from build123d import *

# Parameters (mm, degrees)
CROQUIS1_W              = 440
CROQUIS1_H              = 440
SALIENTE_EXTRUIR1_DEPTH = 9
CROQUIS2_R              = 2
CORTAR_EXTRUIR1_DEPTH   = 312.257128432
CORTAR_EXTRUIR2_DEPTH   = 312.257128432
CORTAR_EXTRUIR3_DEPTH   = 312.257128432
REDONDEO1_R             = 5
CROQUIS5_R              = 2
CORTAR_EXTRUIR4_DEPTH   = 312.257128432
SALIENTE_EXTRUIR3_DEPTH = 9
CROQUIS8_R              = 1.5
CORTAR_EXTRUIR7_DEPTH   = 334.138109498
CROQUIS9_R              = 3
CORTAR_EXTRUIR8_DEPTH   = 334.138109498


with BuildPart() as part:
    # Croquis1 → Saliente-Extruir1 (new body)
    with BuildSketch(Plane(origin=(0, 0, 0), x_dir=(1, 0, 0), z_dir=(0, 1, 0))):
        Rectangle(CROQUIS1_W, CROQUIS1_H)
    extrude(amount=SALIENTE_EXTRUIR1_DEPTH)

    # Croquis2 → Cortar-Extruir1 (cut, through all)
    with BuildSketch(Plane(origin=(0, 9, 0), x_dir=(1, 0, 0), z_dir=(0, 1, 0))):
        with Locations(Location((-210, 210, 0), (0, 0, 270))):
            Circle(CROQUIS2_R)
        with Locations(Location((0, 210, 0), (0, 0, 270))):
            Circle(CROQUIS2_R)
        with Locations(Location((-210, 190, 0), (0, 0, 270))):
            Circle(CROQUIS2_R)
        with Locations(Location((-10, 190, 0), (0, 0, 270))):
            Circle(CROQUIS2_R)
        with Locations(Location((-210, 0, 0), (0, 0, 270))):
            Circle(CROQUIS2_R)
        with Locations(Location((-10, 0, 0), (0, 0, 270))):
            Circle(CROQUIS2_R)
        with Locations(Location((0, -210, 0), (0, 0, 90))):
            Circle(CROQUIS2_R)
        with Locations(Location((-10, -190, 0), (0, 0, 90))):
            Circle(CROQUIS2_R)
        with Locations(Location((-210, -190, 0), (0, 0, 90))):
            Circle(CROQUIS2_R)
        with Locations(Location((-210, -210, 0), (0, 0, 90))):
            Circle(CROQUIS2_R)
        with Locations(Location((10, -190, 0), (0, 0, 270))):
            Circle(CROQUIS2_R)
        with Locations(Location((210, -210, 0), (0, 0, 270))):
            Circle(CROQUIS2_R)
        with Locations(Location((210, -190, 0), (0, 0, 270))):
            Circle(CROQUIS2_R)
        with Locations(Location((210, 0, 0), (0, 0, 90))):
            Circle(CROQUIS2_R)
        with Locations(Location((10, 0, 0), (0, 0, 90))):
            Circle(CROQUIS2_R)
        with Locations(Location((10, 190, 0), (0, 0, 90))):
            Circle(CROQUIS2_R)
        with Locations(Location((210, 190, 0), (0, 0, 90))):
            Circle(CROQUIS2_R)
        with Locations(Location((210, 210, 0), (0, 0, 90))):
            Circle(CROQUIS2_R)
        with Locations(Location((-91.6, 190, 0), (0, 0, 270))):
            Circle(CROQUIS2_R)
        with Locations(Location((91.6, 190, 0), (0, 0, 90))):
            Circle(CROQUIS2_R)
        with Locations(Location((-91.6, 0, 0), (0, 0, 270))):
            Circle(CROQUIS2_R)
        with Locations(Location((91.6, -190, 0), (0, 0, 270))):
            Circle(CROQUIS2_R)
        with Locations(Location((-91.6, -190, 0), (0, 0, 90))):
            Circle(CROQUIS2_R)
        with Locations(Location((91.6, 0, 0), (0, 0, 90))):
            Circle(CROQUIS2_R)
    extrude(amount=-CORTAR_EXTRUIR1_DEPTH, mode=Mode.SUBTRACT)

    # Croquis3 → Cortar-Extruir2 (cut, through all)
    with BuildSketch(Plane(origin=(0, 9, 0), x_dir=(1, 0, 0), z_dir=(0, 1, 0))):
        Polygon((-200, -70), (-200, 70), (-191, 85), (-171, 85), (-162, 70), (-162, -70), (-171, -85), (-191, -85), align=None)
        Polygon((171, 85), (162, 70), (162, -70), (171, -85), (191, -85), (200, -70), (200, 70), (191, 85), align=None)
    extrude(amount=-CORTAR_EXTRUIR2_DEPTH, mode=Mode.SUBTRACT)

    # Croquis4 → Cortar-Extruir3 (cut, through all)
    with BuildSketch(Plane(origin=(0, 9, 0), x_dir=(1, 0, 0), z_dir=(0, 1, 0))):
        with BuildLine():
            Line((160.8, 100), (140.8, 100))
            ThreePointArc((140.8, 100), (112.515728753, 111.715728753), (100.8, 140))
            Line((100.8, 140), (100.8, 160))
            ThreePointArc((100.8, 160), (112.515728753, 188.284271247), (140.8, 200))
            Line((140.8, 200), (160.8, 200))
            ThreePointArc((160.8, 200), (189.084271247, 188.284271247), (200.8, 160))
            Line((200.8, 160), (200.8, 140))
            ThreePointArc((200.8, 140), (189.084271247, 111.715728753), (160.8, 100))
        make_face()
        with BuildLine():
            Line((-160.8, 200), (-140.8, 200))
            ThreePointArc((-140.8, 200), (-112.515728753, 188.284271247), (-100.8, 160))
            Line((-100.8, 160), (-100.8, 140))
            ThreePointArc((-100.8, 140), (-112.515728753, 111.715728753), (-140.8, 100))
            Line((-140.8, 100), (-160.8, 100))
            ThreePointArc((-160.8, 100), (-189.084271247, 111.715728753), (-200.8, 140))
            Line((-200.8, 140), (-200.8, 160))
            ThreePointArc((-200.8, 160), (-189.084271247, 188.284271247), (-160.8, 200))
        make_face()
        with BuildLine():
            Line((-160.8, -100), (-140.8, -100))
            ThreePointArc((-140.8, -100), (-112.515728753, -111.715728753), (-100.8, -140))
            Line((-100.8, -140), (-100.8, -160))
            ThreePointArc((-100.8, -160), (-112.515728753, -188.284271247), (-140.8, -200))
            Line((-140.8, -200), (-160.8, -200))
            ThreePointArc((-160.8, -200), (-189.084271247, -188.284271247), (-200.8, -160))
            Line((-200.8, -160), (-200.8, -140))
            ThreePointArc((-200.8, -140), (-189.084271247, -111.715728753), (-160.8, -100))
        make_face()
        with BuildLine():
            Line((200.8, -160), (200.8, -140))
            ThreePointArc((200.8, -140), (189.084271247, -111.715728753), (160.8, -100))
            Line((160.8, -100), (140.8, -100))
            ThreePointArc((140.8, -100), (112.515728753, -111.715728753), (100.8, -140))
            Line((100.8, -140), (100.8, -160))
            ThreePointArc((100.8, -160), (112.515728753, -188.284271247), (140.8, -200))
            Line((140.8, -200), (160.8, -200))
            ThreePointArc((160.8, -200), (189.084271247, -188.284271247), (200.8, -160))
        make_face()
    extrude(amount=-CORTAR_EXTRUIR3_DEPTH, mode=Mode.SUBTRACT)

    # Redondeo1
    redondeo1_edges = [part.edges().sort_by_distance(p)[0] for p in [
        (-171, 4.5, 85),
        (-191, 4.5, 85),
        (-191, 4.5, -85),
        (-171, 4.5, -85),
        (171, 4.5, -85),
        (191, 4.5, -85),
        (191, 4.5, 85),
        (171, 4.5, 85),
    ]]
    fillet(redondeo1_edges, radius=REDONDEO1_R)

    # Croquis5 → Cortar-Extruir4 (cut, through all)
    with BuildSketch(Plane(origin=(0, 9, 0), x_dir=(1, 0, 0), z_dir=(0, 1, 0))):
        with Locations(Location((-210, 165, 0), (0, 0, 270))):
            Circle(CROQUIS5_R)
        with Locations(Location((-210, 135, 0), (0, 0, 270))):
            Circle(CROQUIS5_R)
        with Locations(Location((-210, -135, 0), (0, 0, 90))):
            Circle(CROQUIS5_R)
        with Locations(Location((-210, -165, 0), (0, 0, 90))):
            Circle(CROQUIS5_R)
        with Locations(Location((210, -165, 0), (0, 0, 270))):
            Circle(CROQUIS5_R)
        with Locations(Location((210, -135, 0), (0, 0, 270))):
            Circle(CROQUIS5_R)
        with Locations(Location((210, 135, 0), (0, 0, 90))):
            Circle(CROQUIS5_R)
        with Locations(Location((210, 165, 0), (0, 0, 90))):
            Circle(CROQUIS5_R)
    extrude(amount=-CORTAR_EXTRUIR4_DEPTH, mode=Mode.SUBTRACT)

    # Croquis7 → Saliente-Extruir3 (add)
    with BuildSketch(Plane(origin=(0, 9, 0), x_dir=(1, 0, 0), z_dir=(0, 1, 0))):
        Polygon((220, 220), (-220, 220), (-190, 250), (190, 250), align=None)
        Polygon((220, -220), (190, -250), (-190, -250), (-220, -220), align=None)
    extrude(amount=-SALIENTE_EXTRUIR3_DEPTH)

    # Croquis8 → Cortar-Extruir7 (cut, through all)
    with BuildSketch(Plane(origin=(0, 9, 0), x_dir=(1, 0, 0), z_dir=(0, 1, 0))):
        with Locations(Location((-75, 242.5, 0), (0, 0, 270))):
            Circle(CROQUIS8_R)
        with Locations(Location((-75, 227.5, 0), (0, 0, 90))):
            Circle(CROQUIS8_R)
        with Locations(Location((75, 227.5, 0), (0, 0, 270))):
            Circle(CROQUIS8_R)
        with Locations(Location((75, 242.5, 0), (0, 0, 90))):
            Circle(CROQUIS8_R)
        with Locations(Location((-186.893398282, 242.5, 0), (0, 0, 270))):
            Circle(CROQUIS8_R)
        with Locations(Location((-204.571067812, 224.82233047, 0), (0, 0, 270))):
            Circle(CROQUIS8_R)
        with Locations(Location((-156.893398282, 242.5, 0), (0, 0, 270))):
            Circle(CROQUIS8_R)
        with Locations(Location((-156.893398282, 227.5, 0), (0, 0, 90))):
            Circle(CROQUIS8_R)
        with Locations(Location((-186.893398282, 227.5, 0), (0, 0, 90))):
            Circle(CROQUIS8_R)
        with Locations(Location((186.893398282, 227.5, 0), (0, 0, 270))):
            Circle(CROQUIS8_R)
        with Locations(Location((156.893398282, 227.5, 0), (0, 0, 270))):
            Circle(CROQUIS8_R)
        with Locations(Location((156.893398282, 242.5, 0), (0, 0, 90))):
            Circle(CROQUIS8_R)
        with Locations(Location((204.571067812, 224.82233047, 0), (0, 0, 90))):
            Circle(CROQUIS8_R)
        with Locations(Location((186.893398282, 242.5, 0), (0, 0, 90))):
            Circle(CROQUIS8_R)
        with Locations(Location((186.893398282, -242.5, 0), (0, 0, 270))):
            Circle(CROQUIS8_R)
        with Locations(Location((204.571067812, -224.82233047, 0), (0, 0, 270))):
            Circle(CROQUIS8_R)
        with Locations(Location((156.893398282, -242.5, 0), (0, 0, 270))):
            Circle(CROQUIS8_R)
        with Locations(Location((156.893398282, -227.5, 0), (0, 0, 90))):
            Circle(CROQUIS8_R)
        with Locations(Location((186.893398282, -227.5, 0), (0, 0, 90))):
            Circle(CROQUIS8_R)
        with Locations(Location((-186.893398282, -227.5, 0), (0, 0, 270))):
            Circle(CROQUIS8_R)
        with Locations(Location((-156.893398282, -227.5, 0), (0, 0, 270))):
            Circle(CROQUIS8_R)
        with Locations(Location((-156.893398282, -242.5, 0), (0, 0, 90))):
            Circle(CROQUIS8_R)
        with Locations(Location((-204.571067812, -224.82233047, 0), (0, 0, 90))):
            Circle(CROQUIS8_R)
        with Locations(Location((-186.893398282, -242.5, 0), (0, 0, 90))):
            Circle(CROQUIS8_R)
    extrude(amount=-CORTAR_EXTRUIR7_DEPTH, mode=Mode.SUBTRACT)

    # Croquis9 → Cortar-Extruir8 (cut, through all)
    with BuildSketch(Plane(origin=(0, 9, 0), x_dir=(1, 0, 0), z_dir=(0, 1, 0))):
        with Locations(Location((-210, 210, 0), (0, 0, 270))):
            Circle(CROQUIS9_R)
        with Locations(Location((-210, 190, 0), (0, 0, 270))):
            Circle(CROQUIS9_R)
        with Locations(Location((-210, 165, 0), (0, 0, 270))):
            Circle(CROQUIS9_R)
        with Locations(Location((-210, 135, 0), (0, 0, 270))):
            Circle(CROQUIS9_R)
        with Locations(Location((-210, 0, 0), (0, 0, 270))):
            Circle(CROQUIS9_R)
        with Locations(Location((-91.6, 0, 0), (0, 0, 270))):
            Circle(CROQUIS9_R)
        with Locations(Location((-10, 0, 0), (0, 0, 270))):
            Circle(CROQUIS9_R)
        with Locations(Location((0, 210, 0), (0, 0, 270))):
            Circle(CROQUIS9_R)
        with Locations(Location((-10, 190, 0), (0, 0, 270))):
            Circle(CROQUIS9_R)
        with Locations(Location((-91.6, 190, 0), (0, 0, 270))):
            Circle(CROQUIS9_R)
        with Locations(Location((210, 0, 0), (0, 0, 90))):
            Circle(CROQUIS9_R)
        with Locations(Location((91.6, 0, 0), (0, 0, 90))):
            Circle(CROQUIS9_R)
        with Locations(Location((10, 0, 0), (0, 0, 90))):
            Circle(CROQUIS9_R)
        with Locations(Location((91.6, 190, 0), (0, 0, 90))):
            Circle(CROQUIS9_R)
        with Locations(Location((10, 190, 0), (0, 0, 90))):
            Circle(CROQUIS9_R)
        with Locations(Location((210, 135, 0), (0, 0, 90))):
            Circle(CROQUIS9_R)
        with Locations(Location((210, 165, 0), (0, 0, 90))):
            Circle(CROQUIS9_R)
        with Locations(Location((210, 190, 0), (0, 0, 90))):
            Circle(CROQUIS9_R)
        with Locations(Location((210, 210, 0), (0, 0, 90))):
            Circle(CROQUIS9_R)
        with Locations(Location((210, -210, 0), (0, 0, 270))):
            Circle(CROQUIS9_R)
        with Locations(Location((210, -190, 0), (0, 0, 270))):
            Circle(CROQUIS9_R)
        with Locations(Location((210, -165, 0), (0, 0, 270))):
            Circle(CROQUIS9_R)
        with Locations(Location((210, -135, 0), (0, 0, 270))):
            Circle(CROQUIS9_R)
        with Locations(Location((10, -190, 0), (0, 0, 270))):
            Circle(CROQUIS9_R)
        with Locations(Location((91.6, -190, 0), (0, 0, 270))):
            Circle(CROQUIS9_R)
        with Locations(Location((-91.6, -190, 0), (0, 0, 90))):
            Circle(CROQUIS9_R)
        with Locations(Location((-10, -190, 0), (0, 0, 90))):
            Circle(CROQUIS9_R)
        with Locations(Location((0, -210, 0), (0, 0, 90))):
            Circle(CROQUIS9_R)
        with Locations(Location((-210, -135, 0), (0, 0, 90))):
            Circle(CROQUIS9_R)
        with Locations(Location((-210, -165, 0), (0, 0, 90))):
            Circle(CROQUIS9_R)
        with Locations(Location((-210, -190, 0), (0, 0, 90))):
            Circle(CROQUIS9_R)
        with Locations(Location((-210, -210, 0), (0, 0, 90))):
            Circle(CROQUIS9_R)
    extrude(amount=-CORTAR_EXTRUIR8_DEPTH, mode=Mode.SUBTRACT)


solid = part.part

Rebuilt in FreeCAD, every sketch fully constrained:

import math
import FreeCAD as App
import Part
import Sketcher
from FreeCAD import Vector
Q = App.Units.Quantity


def edges_at(feature, points):
    """Names of the edges that pass closest to the given points."""
    edges = feature.Shape.Edges
    near = lambda p: min(range(len(edges)), key=lambda i: edges[i].distToShape(Part.Vertex(*p))[0])
    return sorted({f"Edge{near(p) + 1}" for p in points})


def add_polygon(sketch, points):
    """Adds a closed chain of lines whose ends are joined by coincident constraints."""
    first, n = sketch.GeometryCount, len(points)
    for a, b in zip(points, points[1:] + points[:1]):
        sketch.addGeometry(Part.LineSegment(App.Vector(*a, 0), App.Vector(*b, 0)), False)
    for i in range(n):
        sketch.addConstraint(Sketcher.Constraint("Coincident", first + i, 2, first + (i + 1) % n, 1))

doc = App.newDocument("Part")
body = doc.addObject("PartDesign::Body", "Body")

sketch1 = body.newObject("Sketcher::SketchObject", "Sketch")
sketch1.AttachmentSupport = (doc.getObject("XZ_Plane"), [""])
sketch1.MapMode = "FlatFace"
add_polygon(sketch1, [(-220, -220), (-220, 220), (220, 220), (220, -220)])
sketch1.addConstraint(Sketcher.Constraint("Vertical", 0))
sketch1.addConstraint(Sketcher.Constraint("Horizontal", 1))
sketch1.addConstraint(Sketcher.Constraint("Vertical", 2))
sketch1.addConstraint(Sketcher.Constraint("Horizontal", 3))
sketch1.addConstraint(Sketcher.Constraint("Symmetric", 0, 2, 2, 2, -1, 1))
sketch1.addConstraint(Sketcher.Constraint("Equal", 3, 0))
sketch1.addConstraint(Sketcher.Constraint("DistanceX", 1, 1, 1, 2, Q("440 mm")))
pad1 = body.newObject("PartDesign::Pad", "Pad")
pad1.Profile = sketch1
pad1.Length = 9
pad1.Reversed = True

sketch2 = body.newObject("Sketcher::SketchObject", "Sketch001")
sketch2.AttachmentSupport = (doc.getObject("XZ_Plane"), [""])
sketch2.MapMode = "FlatFace"
sketch2.AttachmentOffset = App.Placement(Vector(0, 0, -9), App.Rotation())
sketch2.addGeometry(Part.Circle(Vector(-210, -210, 0), Vector(0, 0, 1), 2), False)
sketch2.addGeometry(Part.Circle(Vector(0, -210, 0), Vector(0, 0, 1), 2), False)
sketch2.addGeometry(Part.Circle(Vector(-210, -190, 0), Vector(0, 0, 1), 2), False)
sketch2.addGeometry(Part.Circle(Vector(-10, -190, 0), Vector(0, 0, 1), 2), False)
sketch2.addGeometry(Part.Circle(Vector(-210, 0, 0), Vector(0, 0, 1), 2), False)
sketch2.addGeometry(Part.Circle(Vector(-10, 0, 0), Vector(0, 0, 1), 2), False)
sketch2.addGeometry(Part.Circle(Vector(0, 210, 0), Vector(0, 0, 1), 2), False)
sketch2.addGeometry(Part.Circle(Vector(-10, 190, 0), Vector(0, 0, 1), 2), False)
sketch2.addGeometry(Part.Circle(Vector(-210, 190, 0), Vector(0, 0, 1), 2), False)
sketch2.addGeometry(Part.Circle(Vector(-210, 210, 0), Vector(0, 0, 1), 2), False)
sketch2.addGeometry(Part.Circle(Vector(10, 190, 0), Vector(0, 0, 1), 2), False)
sketch2.addGeometry(Part.Circle(Vector(210, 210, 0), Vector(0, 0, 1), 2), False)
sketch2.addGeometry(Part.Circle(Vector(210, 190, 0), Vector(0, 0, 1), 2), False)
sketch2.addGeometry(Part.Circle(Vector(210, 0, 0), Vector(0, 0, 1), 2), False)
sketch2.addGeometry(Part.Circle(Vector(10, 0, 0), Vector(0, 0, 1), 2), False)
sketch2.addGeometry(Part.Circle(Vector(10, -190, 0), Vector(0, 0, 1), 2), False)
sketch2.addGeometry(Part.Circle(Vector(210, -190, 0), Vector(0, 0, 1), 2), False)
sketch2.addGeometry(Part.Circle(Vector(210, -210, 0), Vector(0, 0, 1), 2), False)
sketch2.addGeometry(Part.Circle(Vector(-91.6, -190, 0), Vector(0, 0, 1), 2), False)
sketch2.addGeometry(Part.Circle(Vector(91.6, -190, 0), Vector(0, 0, 1), 2), False)
sketch2.addGeometry(Part.Circle(Vector(-91.6, 0, 0), Vector(0, 0, 1), 2), False)
sketch2.addGeometry(Part.Circle(Vector(91.6, 190, 0), Vector(0, 0, 1), 2), False)
sketch2.addGeometry(Part.Circle(Vector(-91.6, 190, 0), Vector(0, 0, 1), 2), False)
sketch2.addGeometry(Part.Circle(Vector(91.6, 0, 0), Vector(0, 0, 1), 2), False)
sketch2.addConstraint(Sketcher.Constraint("Equal", 0, 1))
sketch2.addConstraint(Sketcher.Constraint("Equal", 1, 2))
sketch2.addConstraint(Sketcher.Constraint("Equal", 2, 3))
sketch2.addConstraint(Sketcher.Constraint("Equal", 3, 4))
sketch2.addConstraint(Sketcher.Constraint("Equal", 4, 5))
sketch2.addConstraint(Sketcher.Constraint("Equal", 5, 6))
sketch2.addConstraint(Sketcher.Constraint("Equal", 6, 7))
sketch2.addConstraint(Sketcher.Constraint("Equal", 7, 8))
sketch2.addConstraint(Sketcher.Constraint("Equal", 8, 9))
sketch2.addConstraint(Sketcher.Constraint("Equal", 9, 10))
sketch2.addConstraint(Sketcher.Constraint("Equal", 10, 11))
sketch2.addConstraint(Sketcher.Constraint("Equal", 11, 12))
sketch2.addConstraint(Sketcher.Constraint("Equal", 12, 13))
sketch2.addConstraint(Sketcher.Constraint("Equal", 13, 14))
sketch2.addConstraint(Sketcher.Constraint("Equal", 14, 15))
sketch2.addConstraint(Sketcher.Constraint("Equal", 15, 16))
sketch2.addConstraint(Sketcher.Constraint("Equal", 16, 17))
sketch2.addConstraint(Sketcher.Constraint("Equal", 17, 18))
sketch2.addConstraint(Sketcher.Constraint("Equal", 18, 19))
sketch2.addConstraint(Sketcher.Constraint("Equal", 19, 20))
sketch2.addConstraint(Sketcher.Constraint("Equal", 20, 21))
sketch2.addConstraint(Sketcher.Constraint("Equal", 21, 22))
sketch2.addConstraint(Sketcher.Constraint("Equal", 22, 23))
sketch2.addConstraint(Sketcher.Constraint("Symmetric", 1, 3, 6, 3, -1, 1))
sketch2.addConstraint(Sketcher.Constraint("Symmetric", 3, 3, 10, 3, -1, 1))
sketch2.addConstraint(Sketcher.Constraint("Symmetric", 0, 3, 11, 3, -1, 1))
sketch2.addConstraint(Sketcher.Constraint("Symmetric", 2, 3, 12, 3, -1, 1))
sketch2.addConstraint(Sketcher.Constraint("Symmetric", 4, 3, 13, 3, -1, 1))
sketch2.addConstraint(Sketcher.Constraint("Symmetric", 5, 3, 14, 3, -1, 1))
sketch2.addConstraint(Sketcher.Constraint("Symmetric", 7, 3, 15, 3, -1, 1))
sketch2.addConstraint(Sketcher.Constraint("Symmetric", 8, 3, 16, 3, -1, 1))
sketch2.addConstraint(Sketcher.Constraint("Symmetric", 9, 3, 17, 3, -1, 1))
sketch2.addConstraint(Sketcher.Constraint("Symmetric", 18, 3, 21, 3, -1, 1))
sketch2.addConstraint(Sketcher.Constraint("Symmetric", 19, 3, 22, 3, -1, 1))
sketch2.addConstraint(Sketcher.Constraint("Symmetric", 20, 3, 23, 3, -1, 1))
sketch2.addConstraint(Sketcher.Constraint("Symmetric", 7, 3, 10, 3, -2))
sketch2.addConstraint(Sketcher.Constraint("Symmetric", 9, 3, 11, 3, -2))
sketch2.addConstraint(Sketcher.Constraint("Symmetric", 8, 3, 12, 3, -2))
sketch2.addConstraint(Sketcher.Constraint("Symmetric", 18, 3, 19, 3, -2))
sketch2.addConstraint(Sketcher.Constraint("PointOnObject", 1, 3, -2))
sketch2.addConstraint(Sketcher.Constraint("PointOnObject", 4, 3, -1))
sketch2.addConstraint(Sketcher.Constraint("PointOnObject", 5, 3, -1))
sketch2.addConstraint(Sketcher.Constraint("PointOnObject", 20, 3, -1))
sketch2.addConstraint(Sketcher.Constraint("Horizontal", 0, 3, 1, 3))
sketch2.addConstraint(Sketcher.Constraint("Horizontal", 2, 3, 3, 3))
sketch2.addConstraint(Sketcher.Constraint("Horizontal", 16, 3, 18, 3))
sketch2.addConstraint(Sketcher.Constraint("Vertical", 0, 3, 2, 3))
sketch2.addConstraint(Sketcher.Constraint("Vertical", 2, 3, 4, 3))
sketch2.addConstraint(Sketcher.Constraint("Vertical", 3, 3, 5, 3))
sketch2.addConstraint(Sketcher.Constraint("Vertical", 18, 3, 20, 3))
sketch2.addConstraint(Sketcher.Constraint("Diameter", 0, Q("4 mm")))
sketch2.addConstraint(Sketcher.Constraint("DistanceX", 0, 3, -1, 1, Q("210 mm")))
sketch2.addConstraint(Sketcher.Constraint("DistanceY", 0, 3, -1, 1, Q("210 mm")))
sketch2.addConstraint(Sketcher.Constraint("DistanceY", 2, 3, -1, 1, Q("190 mm")))
sketch2.addConstraint(Sketcher.Constraint("DistanceX", 3, 3, -1, 1, Q("10 mm")))
sketch2.addConstraint(Sketcher.Constraint("DistanceX", 18, 3, -1, 1, Q("91.6 mm")))
pocket1 = body.newObject("PartDesign::Pocket", "Pocket")
pocket1.Profile = sketch2
pocket1.Type = "ThroughAll"
pocket1.Reversed = True

sketch3 = body.newObject("Sketcher::SketchObject", "Sketch002")
sketch3.AttachmentSupport = (doc.getObject("XZ_Plane"), [""])
sketch3.MapMode = "FlatFace"
sketch3.AttachmentOffset = App.Placement(Vector(0, 0, -9), App.Rotation())
add_polygon(sketch3, [(-200, -70), (-200, 70), (-191, 85), (-171, 85), (-162, 70), (-162, -70), (-171, -85), (-191, -85)])
add_polygon(sketch3, [(171, -85), (162, -70), (162, 70), (171, 85), (191, 85), (200, 70), (200, -70), (191, -85)])
sketch3.addConstraint(Sketcher.Constraint("Vertical", 0))
sketch3.addConstraint(Sketcher.Constraint("Horizontal", 2))
sketch3.addConstraint(Sketcher.Constraint("Vertical", 4))
sketch3.addConstraint(Sketcher.Constraint("Horizontal", 6))
sketch3.addConstraint(Sketcher.Constraint("Vertical", 9))
sketch3.addConstraint(Sketcher.Constraint("Horizontal", 11))
sketch3.addConstraint(Sketcher.Constraint("Vertical", 13))
sketch3.addConstraint(Sketcher.Constraint("Horizontal", 15))
sketch3.addConstraint(Sketcher.Constraint("Symmetric", 3, 2, 8, 2, -1, 1))
sketch3.addConstraint(Sketcher.Constraint("Symmetric", 5, 2, 10, 2, -1, 1))
sketch3.addConstraint(Sketcher.Constraint("Symmetric", 7, 2, 12, 2, -1, 1))
sketch3.addConstraint(Sketcher.Constraint("Symmetric", 1, 2, 14, 2, -1, 1))
sketch3.addConstraint(Sketcher.Constraint("Symmetric", 2, 2, 10, 2, -2))
sketch3.addConstraint(Sketcher.Constraint("Parallel", 1, 5))
sketch3.addConstraint(Sketcher.Constraint("Parallel", 3, 7))
sketch3.addConstraint(Sketcher.Constraint("Parallel", 7, 8))
sketch3.addConstraint(Sketcher.Constraint("Parallel", 5, 10))
sketch3.addConstraint(Sketcher.Constraint("Parallel", 8, 12))
sketch3.addConstraint(Sketcher.Constraint("Parallel", 10, 14))
sketch3.addConstraint(Sketcher.Constraint("Horizontal", 0, 2, 3, 2))
sketch3.addConstraint(Sketcher.Constraint("Horizontal", 4, 2, 7, 2))
sketch3.addConstraint(Sketcher.Constraint("Horizontal", 7, 2, 8, 2))
sketch3.addConstraint(Sketcher.Constraint("DistanceX", 2, 1, 2, 2, Q("20 mm")))
sketch3.addConstraint(Sketcher.Constraint("DistanceY", 0, 1, 0, 2, Q("140 mm")))
sketch3.addConstraint(Sketcher.Constraint("DistanceX", 0, 2, -1, 1, Q("200 mm")))
sketch3.addConstraint(Sketcher.Constraint("DistanceX", 1, 2, -1, 1, Q("191 mm")))
sketch3.addConstraint(Sketcher.Constraint("DistanceY", -1, 1, 1, 2, Q("85 mm")))
pocket2 = body.newObject("PartDesign::Pocket", "Pocket001")
pocket2.Profile = sketch3
pocket2.Type = "ThroughAll"
pocket2.Reversed = True

sketch4 = body.newObject("Sketcher::SketchObject", "Sketch003")
sketch4.AttachmentSupport = (doc.getObject("XZ_Plane"), [""])
sketch4.MapMode = "FlatFace"
sketch4.AttachmentOffset = App.Placement(Vector(0, 0, -9), App.Rotation())
sketch4.addGeometry(Part.LineSegment(Vector(141, -100, 0), Vector(161, -100, 0)), False)
sketch4.addGeometry(Part.ArcOfCircle(Part.Circle(Vector(161, -140, 0), Vector(0, 0, 1), 40), math.radians(0), math.radians(90)), False)
sketch4.addGeometry(Part.LineSegment(Vector(201, -140, 0), Vector(201, -160, 0)), False)
sketch4.addGeometry(Part.ArcOfCircle(Part.Circle(Vector(161, -160, 0), Vector(0, 0, 1), 40), math.radians(-90), math.radians(0)), False)
sketch4.addGeometry(Part.LineSegment(Vector(161, -200, 0), Vector(141, -200, 0)), False)
sketch4.addGeometry(Part.ArcOfCircle(Part.Circle(Vector(141, -160, 0), Vector(0, 0, 1), 40), math.radians(-180), math.radians(-90)), False)
sketch4.addGeometry(Part.LineSegment(Vector(101, -160, 0), Vector(101, -140, 0)), False)
sketch4.addGeometry(Part.ArcOfCircle(Part.Circle(Vector(141, -140, 0), Vector(0, 0, 1), 40), math.radians(90), math.radians(180)), False)
sketch4.addGeometry(Part.LineSegment(Vector(-141, -200, 0), Vector(-161, -200, 0)), False)
sketch4.addGeometry(Part.ArcOfCircle(Part.Circle(Vector(-161, -160, 0), Vector(0, 0, 1), 40), math.radians(-180), math.radians(-90)), False)
sketch4.addGeometry(Part.LineSegment(Vector(-201, -160, 0), Vector(-201, -140, 0)), False)
sketch4.addGeometry(Part.ArcOfCircle(Part.Circle(Vector(-161, -140, 0), Vector(0, 0, 1), 40), math.radians(90), math.radians(180)), False)
sketch4.addGeometry(Part.LineSegment(Vector(-161, -100, 0), Vector(-141, -100, 0)), False)
sketch4.addGeometry(Part.ArcOfCircle(Part.Circle(Vector(-141, -140, 0), Vector(0, 0, 1), 40), math.radians(0), math.radians(90)), False)
sketch4.addGeometry(Part.LineSegment(Vector(-101, -140, 0), Vector(-101, -160, 0)), False)
sketch4.addGeometry(Part.ArcOfCircle(Part.Circle(Vector(-141, -160, 0), Vector(0, 0, 1), 40), math.radians(-90), math.radians(0)), False)
sketch4.addGeometry(Part.LineSegment(Vector(-141, 100, 0), Vector(-161, 100, 0)), False)
sketch4.addGeometry(Part.ArcOfCircle(Part.Circle(Vector(-161, 140, 0), Vector(0, 0, 1), 40), math.radians(-180), math.radians(-90)), False)
sketch4.addGeometry(Part.LineSegment(Vector(-201, 140, 0), Vector(-201, 160, 0)), False)
sketch4.addGeometry(Part.ArcOfCircle(Part.Circle(Vector(-161, 160, 0), Vector(0, 0, 1), 40), math.radians(90), math.radians(180)), False)
sketch4.addGeometry(Part.LineSegment(Vector(-161, 200, 0), Vector(-141, 200, 0)), False)
sketch4.addGeometry(Part.ArcOfCircle(Part.Circle(Vector(-141, 160, 0), Vector(0, 0, 1), 40), math.radians(0), math.radians(90)), False)
sketch4.addGeometry(Part.LineSegment(Vector(-101, 160, 0), Vector(-101, 140, 0)), False)
sketch4.addGeometry(Part.ArcOfCircle(Part.Circle(Vector(-141, 140, 0), Vector(0, 0, 1), 40), math.radians(-90), math.radians(0)), False)
sketch4.addGeometry(Part.LineSegment(Vector(201, 160, 0), Vector(201, 140, 0)), False)
sketch4.addGeometry(Part.ArcOfCircle(Part.Circle(Vector(161, 140, 0), Vector(0, 0, 1), 40), math.radians(-90), math.radians(0)), False)
sketch4.addGeometry(Part.LineSegment(Vector(161, 100, 0), Vector(141, 100, 0)), False)
sketch4.addGeometry(Part.ArcOfCircle(Part.Circle(Vector(141, 140, 0), Vector(0, 0, 1), 40), math.radians(-180), math.radians(-90)), False)
sketch4.addGeometry(Part.LineSegment(Vector(101, 140, 0), Vector(101, 160, 0)), False)
sketch4.addGeometry(Part.ArcOfCircle(Part.Circle(Vector(141, 160, 0), Vector(0, 0, 1), 40), math.radians(90), math.radians(180)), False)
sketch4.addGeometry(Part.LineSegment(Vector(141, 200, 0), Vector(161, 200, 0)), False)
sketch4.addGeometry(Part.ArcOfCircle(Part.Circle(Vector(161, 160, 0), Vector(0, 0, 1), 40), math.radians(0), math.radians(90)), False)
sketch4.addConstraint(Sketcher.Constraint("Tangent", 0, 2, 1, 2))
sketch4.addConstraint(Sketcher.Constraint("Tangent", 1, 1, 2, 1))
sketch4.addConstraint(Sketcher.Constraint("Tangent", 2, 2, 3, 2))
sketch4.addConstraint(Sketcher.Constraint("Tangent", 3, 1, 4, 1))
sketch4.addConstraint(Sketcher.Constraint("Tangent", 4, 2, 5, 2))
sketch4.addConstraint(Sketcher.Constraint("Tangent", 5, 1, 6, 1))
sketch4.addConstraint(Sketcher.Constraint("Tangent", 6, 2, 7, 2))
sketch4.addConstraint(Sketcher.Constraint("Tangent", 7, 1, 0, 1))
sketch4.addConstraint(Sketcher.Constraint("Tangent", 8, 2, 9, 2))
sketch4.addConstraint(Sketcher.Constraint("Tangent", 9, 1, 10, 1))
sketch4.addConstraint(Sketcher.Constraint("Tangent", 10, 2, 11, 2))
sketch4.addConstraint(Sketcher.Constraint("Tangent", 11, 1, 12, 1))
sketch4.addConstraint(Sketcher.Constraint("Tangent", 12, 2, 13, 2))
sketch4.addConstraint(Sketcher.Constraint("Tangent", 13, 1, 14, 1))
sketch4.addConstraint(Sketcher.Constraint("Tangent", 14, 2, 15, 2))
sketch4.addConstraint(Sketcher.Constraint("Tangent", 15, 1, 8, 1))
sketch4.addConstraint(Sketcher.Constraint("Tangent", 16, 2, 17, 2))
sketch4.addConstraint(Sketcher.Constraint("Tangent", 17, 1, 18, 1))
sketch4.addConstraint(Sketcher.Constraint("Tangent", 18, 2, 19, 2))
sketch4.addConstraint(Sketcher.Constraint("Tangent", 19, 1, 20, 1))
sketch4.addConstraint(Sketcher.Constraint("Tangent", 20, 2, 21, 2))
sketch4.addConstraint(Sketcher.Constraint("Tangent", 21, 1, 22, 1))
sketch4.addConstraint(Sketcher.Constraint("Tangent", 22, 2, 23, 2))
sketch4.addConstraint(Sketcher.Constraint("Tangent", 23, 1, 16, 1))
sketch4.addConstraint(Sketcher.Constraint("Tangent", 24, 2, 25, 2))
sketch4.addConstraint(Sketcher.Constraint("Tangent", 25, 1, 26, 1))
sketch4.addConstraint(Sketcher.Constraint("Tangent", 26, 2, 27, 2))
sketch4.addConstraint(Sketcher.Constraint("Tangent", 27, 1, 28, 1))
sketch4.addConstraint(Sketcher.Constraint("Tangent", 28, 2, 29, 2))
sketch4.addConstraint(Sketcher.Constraint("Tangent", 29, 1, 30, 1))
sketch4.addConstraint(Sketcher.Constraint("Tangent", 30, 2, 31, 2))
sketch4.addConstraint(Sketcher.Constraint("Tangent", 31, 1, 24, 1))
sketch4.addConstraint(Sketcher.Constraint("Horizontal", 0))
sketch4.addConstraint(Sketcher.Constraint("Vertical", 2))
sketch4.addConstraint(Sketcher.Constraint("Horizontal", 4))
sketch4.addConstraint(Sketcher.Constraint("Vertical", 6))
sketch4.addConstraint(Sketcher.Constraint("Horizontal", 8))
sketch4.addConstraint(Sketcher.Constraint("Vertical", 10))
sketch4.addConstraint(Sketcher.Constraint("Horizontal", 12))
sketch4.addConstraint(Sketcher.Constraint("Vertical", 14))
sketch4.addConstraint(Sketcher.Constraint("Horizontal", 16))
sketch4.addConstraint(Sketcher.Constraint("Vertical", 18))
sketch4.addConstraint(Sketcher.Constraint("Horizontal", 20))
sketch4.addConstraint(Sketcher.Constraint("Vertical", 22))
sketch4.addConstraint(Sketcher.Constraint("Vertical", 24))
sketch4.addConstraint(Sketcher.Constraint("Horizontal", 26))
sketch4.addConstraint(Sketcher.Constraint("Vertical", 28))
sketch4.addConstraint(Sketcher.Constraint("Horizontal", 30))
sketch4.addConstraint(Sketcher.Constraint("Equal", 1, 3))
sketch4.addConstraint(Sketcher.Constraint("Equal", 3, 5))
sketch4.addConstraint(Sketcher.Constraint("Equal", 5, 7))
sketch4.addConstraint(Sketcher.Constraint("Equal", 7, 9))
sketch4.addConstraint(Sketcher.Constraint("Equal", 9, 11))
sketch4.addConstraint(Sketcher.Constraint("Equal", 11, 13))
sketch4.addConstraint(Sketcher.Constraint("Equal", 13, 15))
sketch4.addConstraint(Sketcher.Constraint("Equal", 15, 17))
sketch4.addConstraint(Sketcher.Constraint("Equal", 17, 19))
sketch4.addConstraint(Sketcher.Constraint("Equal", 19, 21))
sketch4.addConstraint(Sketcher.Constraint("Equal", 21, 23))
sketch4.addConstraint(Sketcher.Constraint("Equal", 23, 25))
sketch4.addConstraint(Sketcher.Constraint("Equal", 25, 27))
sketch4.addConstraint(Sketcher.Constraint("Equal", 27, 29))
sketch4.addConstraint(Sketcher.Constraint("Equal", 29, 31))
sketch4.addConstraint(Sketcher.Constraint("Symmetric", 1, 3, 17, 3, -1, 1))
sketch4.addConstraint(Sketcher.Constraint("Symmetric", 5, 3, 21, 3, -1, 1))
sketch4.addConstraint(Sketcher.Constraint("Symmetric", 11, 3, 25, 3, -1, 1))
sketch4.addConstraint(Sketcher.Constraint("Symmetric", 15, 3, 29, 3, -1, 1))
sketch4.addConstraint(Sketcher.Constraint("Symmetric", 3, 3, 9, 3, -2))
sketch4.addConstraint(Sketcher.Constraint("Symmetric", 7, 3, 13, 3, -2))
sketch4.addConstraint(Sketcher.Constraint("Equal", 30, 2))
sketch4.addConstraint(Sketcher.Constraint("Radius", 1, Q("40 mm")))
sketch4.addConstraint(Sketcher.Constraint("DistanceX", 0, 1, 0, 2, Q("20 mm")))
sketch4.addConstraint(Sketcher.Constraint("DistanceY", 1, 3, -1, 1, Q("140 mm")))
sketch4.addConstraint(Sketcher.Constraint("DistanceX", -1, 1, 1, 3, Q("160.8 mm")))
pocket3 = body.newObject("PartDesign::Pocket", "Pocket002")
pocket3.Profile = sketch4
pocket3.Type = "ThroughAll"
pocket3.Reversed = True
doc.recompute()

fillet = body.newObject("PartDesign::Fillet", "Fillet")
fillet.Base = (pocket3, edges_at(pocket3, [
    (-171, 4.5, 85),
    (-191, 4.5, 85),
    (-191, 4.5, -85),
    (-171, 4.5, -85),
    (171, 4.5, -85),
    (191, 4.5, -85),
    (191, 4.5, 85),
    (171, 4.5, 85),
]))
fillet.Radius = 5

sketch5 = body.newObject("Sketcher::SketchObject", "Sketch004")
sketch5.AttachmentSupport = (doc.getObject("XZ_Plane"), [""])
sketch5.MapMode = "FlatFace"
sketch5.AttachmentOffset = App.Placement(Vector(0, 0, -9), App.Rotation())
sketch5.addGeometry(Part.Circle(Vector(-210, -165, 0), Vector(0, 0, 1), 2), False)
sketch5.addGeometry(Part.Circle(Vector(-210, -135, 0), Vector(0, 0, 1), 2), False)
sketch5.addGeometry(Part.Circle(Vector(-210, 135, 0), Vector(0, 0, 1), 2), False)
sketch5.addGeometry(Part.Circle(Vector(-210, 165, 0), Vector(0, 0, 1), 2), False)
sketch5.addGeometry(Part.Circle(Vector(210, 165, 0), Vector(0, 0, 1), 2), False)
sketch5.addGeometry(Part.Circle(Vector(210, 135, 0), Vector(0, 0, 1), 2), False)
sketch5.addGeometry(Part.Circle(Vector(210, -135, 0), Vector(0, 0, 1), 2), False)
sketch5.addGeometry(Part.Circle(Vector(210, -165, 0), Vector(0, 0, 1), 2), False)
sketch5.addConstraint(Sketcher.Constraint("Equal", 0, 1))
sketch5.addConstraint(Sketcher.Constraint("Equal", 1, 2))
sketch5.addConstraint(Sketcher.Constraint("Equal", 2, 3))
sketch5.addConstraint(Sketcher.Constraint("Equal", 3, 4))
sketch5.addConstraint(Sketcher.Constraint("Equal", 4, 5))
sketch5.addConstraint(Sketcher.Constraint("Equal", 5, 6))
sketch5.addConstraint(Sketcher.Constraint("Equal", 6, 7))
sketch5.addConstraint(Sketcher.Constraint("Symmetric", 0, 3, 4, 3, -1, 1))
sketch5.addConstraint(Sketcher.Constraint("Symmetric", 1, 3, 5, 3, -1, 1))
sketch5.addConstraint(Sketcher.Constraint("Symmetric", 2, 3, 6, 3, -1, 1))
sketch5.addConstraint(Sketcher.Constraint("Symmetric", 3, 3, 7, 3, -1, 1))
sketch5.addConstraint(Sketcher.Constraint("Symmetric", 3, 3, 4, 3, -2))
sketch5.addConstraint(Sketcher.Constraint("Symmetric", 2, 3, 5, 3, -2))
sketch5.addConstraint(Sketcher.Constraint("Vertical", 0, 3, 1, 3))
sketch5.addConstraint(Sketcher.Constraint("Diameter", 0, Q("4 mm")))
sketch5.addConstraint(Sketcher.Constraint("DistanceX", 0, 3, -1, 1, Q("210 mm")))
sketch5.addConstraint(Sketcher.Constraint("DistanceY", 0, 3, -1, 1, Q("165 mm")))
sketch5.addConstraint(Sketcher.Constraint("DistanceY", 1, 3, -1, 1, Q("135 mm")))
pocket4 = body.newObject("PartDesign::Pocket", "Pocket003")
pocket4.Profile = sketch5
pocket4.Type = "ThroughAll"
pocket4.Reversed = True

sketch6 = body.newObject("Sketcher::SketchObject", "Sketch005")
sketch6.AttachmentSupport = (doc.getObject("XZ_Plane"), [""])
sketch6.MapMode = "FlatFace"
sketch6.AttachmentOffset = App.Placement(Vector(0, 0, -9), App.Rotation())
add_polygon(sketch6, [(-220, -220), (220, -220), (190, -250), (-190, -250)])
add_polygon(sketch6, [(190, 250), (220, 220), (-220, 220), (-190, 250)])
sketch6.addConstraint(Sketcher.Constraint("Horizontal", 0))
sketch6.addConstraint(Sketcher.Constraint("Horizontal", 2))
sketch6.addConstraint(Sketcher.Constraint("Horizontal", 5))
sketch6.addConstraint(Sketcher.Constraint("Horizontal", 7))
sketch6.addConstraint(Sketcher.Constraint("Symmetric", 3, 2, 4, 2, -1, 1))
sketch6.addConstraint(Sketcher.Constraint("Symmetric", 1, 2, 6, 2, -1, 1))
sketch6.addConstraint(Sketcher.Constraint("Perpendicular", 1, 3))
sketch6.addConstraint(Sketcher.Constraint("Parallel", 3, 4))
sketch6.addConstraint(Sketcher.Constraint("Perpendicular", 4, 6))
sketch6.addConstraint(Sketcher.Constraint("Vertical", 0, 2, 4, 2))
sketch6.addConstraint(Sketcher.Constraint("Vertical", 2, 2, 6, 2))
sketch6.addConstraint(Sketcher.Constraint("DistanceX", 0, 1, 0, 2, Q("440 mm")))
sketch6.addConstraint(Sketcher.Constraint("DistanceX", 2, 2, 2, 1, Q("380 mm")))
sketch6.addConstraint(Sketcher.Constraint("DistanceY", 0, 2, -1, 1, Q("220 mm")))
pad2 = body.newObject("PartDesign::Pad", "Pad001")
pad2.Profile = sketch6
pad2.Length = 9

sketch7 = body.newObject("Sketcher::SketchObject", "Sketch006")
sketch7.AttachmentSupport = (doc.getObject("XZ_Plane"), [""])
sketch7.MapMode = "FlatFace"
sketch7.AttachmentOffset = App.Placement(Vector(0, 0, -9), App.Rotation())
sketch7.addGeometry(Part.Circle(Vector(-75, -242.5, 0), Vector(0, 0, 1), 1.5), False)
sketch7.addGeometry(Part.Circle(Vector(-75, -227.5, 0), Vector(0, 0, 1), 1.5), False)
sketch7.addGeometry(Part.Circle(Vector(75, -227.5, 0), Vector(0, 0, 1), 1.5), False)
sketch7.addGeometry(Part.Circle(Vector(75, -242.5, 0), Vector(0, 0, 1), 1.5), False)
sketch7.addGeometry(Part.Circle(Vector(-186.9, -242.5, 0), Vector(0, 0, 1), 1.5), False)
sketch7.addGeometry(Part.Circle(Vector(-204.6, -224.8, 0), Vector(0, 0, 1), 1.5), False)
sketch7.addGeometry(Part.Circle(Vector(-156.9, -242.5, 0), Vector(0, 0, 1), 1.5), False)
sketch7.addGeometry(Part.Circle(Vector(-156.9, -227.5, 0), Vector(0, 0, 1), 1.5), False)
sketch7.addGeometry(Part.Circle(Vector(-186.9, -227.5, 0), Vector(0, 0, 1), 1.5), False)
sketch7.addGeometry(Part.Circle(Vector(186.9, -227.5, 0), Vector(0, 0, 1), 1.5), False)
sketch7.addGeometry(Part.Circle(Vector(156.9, -227.5, 0), Vector(0, 0, 1), 1.5), False)
sketch7.addGeometry(Part.Circle(Vector(156.9, -242.5, 0), Vector(0, 0, 1), 1.5), False)
sketch7.addGeometry(Part.Circle(Vector(204.6, -224.8, 0), Vector(0, 0, 1), 1.5), False)
sketch7.addGeometry(Part.Circle(Vector(186.9, -242.5, 0), Vector(0, 0, 1), 1.5), False)
sketch7.addGeometry(Part.Circle(Vector(186.9, 242.5, 0), Vector(0, 0, 1), 1.5), False)
sketch7.addGeometry(Part.Circle(Vector(204.6, 224.8, 0), Vector(0, 0, 1), 1.5), False)
sketch7.addGeometry(Part.Circle(Vector(156.9, 242.5, 0), Vector(0, 0, 1), 1.5), False)
sketch7.addGeometry(Part.Circle(Vector(156.9, 227.5, 0), Vector(0, 0, 1), 1.5), False)
sketch7.addGeometry(Part.Circle(Vector(186.9, 227.5, 0), Vector(0, 0, 1), 1.5), False)
sketch7.addGeometry(Part.Circle(Vector(-186.9, 227.5, 0), Vector(0, 0, 1), 1.5), False)
sketch7.addGeometry(Part.Circle(Vector(-156.9, 227.5, 0), Vector(0, 0, 1), 1.5), False)
sketch7.addGeometry(Part.Circle(Vector(-156.9, 242.5, 0), Vector(0, 0, 1), 1.5), False)
sketch7.addGeometry(Part.Circle(Vector(-204.6, 224.8, 0), Vector(0, 0, 1), 1.5), False)
sketch7.addGeometry(Part.Circle(Vector(-186.9, 242.5, 0), Vector(0, 0, 1), 1.5), False)
sketch7.addConstraint(Sketcher.Constraint("Equal", 0, 1))
sketch7.addConstraint(Sketcher.Constraint("Equal", 1, 2))
sketch7.addConstraint(Sketcher.Constraint("Equal", 2, 3))
sketch7.addConstraint(Sketcher.Constraint("Equal", 3, 4))
sketch7.addConstraint(Sketcher.Constraint("Equal", 4, 5))
sketch7.addConstraint(Sketcher.Constraint("Equal", 5, 6))
sketch7.addConstraint(Sketcher.Constraint("Equal", 6, 7))
sketch7.addConstraint(Sketcher.Constraint("Equal", 7, 8))
sketch7.addConstraint(Sketcher.Constraint("Equal", 8, 9))
sketch7.addConstraint(Sketcher.Constraint("Equal", 9, 10))
sketch7.addConstraint(Sketcher.Constraint("Equal", 10, 11))
sketch7.addConstraint(Sketcher.Constraint("Equal", 11, 12))
sketch7.addConstraint(Sketcher.Constraint("Equal", 12, 13))
sketch7.addConstraint(Sketcher.Constraint("Equal", 13, 14))
sketch7.addConstraint(Sketcher.Constraint("Equal", 14, 15))
sketch7.addConstraint(Sketcher.Constraint("Equal", 15, 16))
sketch7.addConstraint(Sketcher.Constraint("Equal", 16, 17))
sketch7.addConstraint(Sketcher.Constraint("Equal", 17, 18))
sketch7.addConstraint(Sketcher.Constraint("Equal", 18, 19))
sketch7.addConstraint(Sketcher.Constraint("Equal", 19, 20))
sketch7.addConstraint(Sketcher.Constraint("Equal", 20, 21))
sketch7.addConstraint(Sketcher.Constraint("Equal", 21, 22))
sketch7.addConstraint(Sketcher.Constraint("Equal", 22, 23))
sketch7.addConstraint(Sketcher.Constraint("Symmetric", 4, 3, 14, 3, -1, 1))
sketch7.addConstraint(Sketcher.Constraint("Symmetric", 5, 3, 15, 3, -1, 1))
sketch7.addConstraint(Sketcher.Constraint("Symmetric", 6, 3, 16, 3, -1, 1))
sketch7.addConstraint(Sketcher.Constraint("Symmetric", 7, 3, 17, 3, -1, 1))
sketch7.addConstraint(Sketcher.Constraint("Symmetric", 8, 3, 18, 3, -1, 1))
sketch7.addConstraint(Sketcher.Constraint("Symmetric", 9, 3, 19, 3, -1, 1))
sketch7.addConstraint(Sketcher.Constraint("Symmetric", 10, 3, 20, 3, -1, 1))
sketch7.addConstraint(Sketcher.Constraint("Symmetric", 11, 3, 21, 3, -1, 1))
sketch7.addConstraint(Sketcher.Constraint("Symmetric", 12, 3, 22, 3, -1, 1))
sketch7.addConstraint(Sketcher.Constraint("Symmetric", 13, 3, 23, 3, -1, 1))
sketch7.addConstraint(Sketcher.Constraint("Symmetric", 1, 3, 2, 3, -2))
sketch7.addConstraint(Sketcher.Constraint("Symmetric", 0, 3, 3, 3, -2))
sketch7.addConstraint(Sketcher.Constraint("Symmetric", 8, 3, 9, 3, -2))
sketch7.addConstraint(Sketcher.Constraint("Symmetric", 7, 3, 10, 3, -2))
sketch7.addConstraint(Sketcher.Constraint("Symmetric", 6, 3, 11, 3, -2))
sketch7.addConstraint(Sketcher.Constraint("Symmetric", 5, 3, 12, 3, -2))
sketch7.addConstraint(Sketcher.Constraint("Symmetric", 4, 3, 13, 3, -2))
sketch7.addConstraint(Sketcher.Constraint("Horizontal", 3, 3, 4, 3))
sketch7.addConstraint(Sketcher.Constraint("Horizontal", 4, 3, 6, 3))
sketch7.addConstraint(Sketcher.Constraint("Horizontal", 2, 3, 7, 3))
sketch7.addConstraint(Sketcher.Constraint("Horizontal", 7, 3, 8, 3))
sketch7.addConstraint(Sketcher.Constraint("Vertical", 0, 3, 1, 3))
sketch7.addConstraint(Sketcher.Constraint("Vertical", 6, 3, 7, 3))
sketch7.addConstraint(Sketcher.Constraint("Vertical", 4, 3, 8, 3))
sketch7.addConstraint(Sketcher.Constraint("Diameter", 0, Q("3 mm")))
sketch7.addConstraint(Sketcher.Constraint("DistanceX", 0, 3, -1, 1, Q("75 mm")))
sketch7.addConstraint(Sketcher.Constraint("DistanceY", 0, 3, 1, 3, Q("15 mm")))
sketch7.addConstraint(Sketcher.Constraint("DistanceX", 4, 3, 6, 3, Q("30 mm")))
sketch7.addConstraint(Sketcher.Constraint("DistanceY", 9, 3, 14, 3, Q("470 mm")))
sketch7.addConstraint(Sketcher.Constraint("DistanceX", 4, 3, -1, 1, Q("186.893398 mm")))
sketch7.addConstraint(Sketcher.Constraint("DistanceY", 5, 3, -1, 1, Q("224.82233 mm")))
sketch7.addConstraint(Sketcher.Constraint("DistanceX", 5, 3, 4, 3, Q("17.67767 mm")))
pocket5 = body.newObject("PartDesign::Pocket", "Pocket004")
pocket5.Profile = sketch7
pocket5.Type = "ThroughAll"
pocket5.Reversed = True

sketch8 = body.newObject("Sketcher::SketchObject", "Sketch007")
sketch8.AttachmentSupport = (doc.getObject("XZ_Plane"), [""])
sketch8.MapMode = "FlatFace"
sketch8.AttachmentOffset = App.Placement(Vector(0, 0, -9), App.Rotation())
sketch8.addGeometry(Part.Circle(Vector(-210, -210, 0), Vector(0, 0, 1), 3), False)
sketch8.addGeometry(Part.Circle(Vector(-210, -190, 0), Vector(0, 0, 1), 3), False)
sketch8.addGeometry(Part.Circle(Vector(-210, -165, 0), Vector(0, 0, 1), 3), False)
sketch8.addGeometry(Part.Circle(Vector(-210, -135, 0), Vector(0, 0, 1), 3), False)
sketch8.addGeometry(Part.Circle(Vector(-210, 0, 0), Vector(0, 0, 1), 3), False)
sketch8.addGeometry(Part.Circle(Vector(-91.6, 0, 0), Vector(0, 0, 1), 3), False)
sketch8.addGeometry(Part.Circle(Vector(-10, 0, 0), Vector(0, 0, 1), 3), False)
sketch8.addGeometry(Part.Circle(Vector(0, -210, 0), Vector(0, 0, 1), 3), False)
sketch8.addGeometry(Part.Circle(Vector(-10, -190, 0), Vector(0, 0, 1), 3), False)
sketch8.addGeometry(Part.Circle(Vector(-91.6, -190, 0), Vector(0, 0, 1), 3), False)
sketch8.addGeometry(Part.Circle(Vector(210, 0, 0), Vector(0, 0, 1), 3), False)
sketch8.addGeometry(Part.Circle(Vector(91.6, 0, 0), Vector(0, 0, 1), 3), False)
sketch8.addGeometry(Part.Circle(Vector(10, 0, 0), Vector(0, 0, 1), 3), False)
sketch8.addGeometry(Part.Circle(Vector(91.6, -190, 0), Vector(0, 0, 1), 3), False)
sketch8.addGeometry(Part.Circle(Vector(10, -190, 0), Vector(0, 0, 1), 3), False)
sketch8.addGeometry(Part.Circle(Vector(210, -135, 0), Vector(0, 0, 1), 3), False)
sketch8.addGeometry(Part.Circle(Vector(210, -165, 0), Vector(0, 0, 1), 3), False)
sketch8.addGeometry(Part.Circle(Vector(210, -190, 0), Vector(0, 0, 1), 3), False)
sketch8.addGeometry(Part.Circle(Vector(210, -210, 0), Vector(0, 0, 1), 3), False)
sketch8.addGeometry(Part.Circle(Vector(210, 210, 0), Vector(0, 0, 1), 3), False)
sketch8.addGeometry(Part.Circle(Vector(210, 190, 0), Vector(0, 0, 1), 3), False)
sketch8.addGeometry(Part.Circle(Vector(210, 165, 0), Vector(0, 0, 1), 3), False)
sketch8.addGeometry(Part.Circle(Vector(210, 135, 0), Vector(0, 0, 1), 3), False)
sketch8.addGeometry(Part.Circle(Vector(10, 190, 0), Vector(0, 0, 1), 3), False)
sketch8.addGeometry(Part.Circle(Vector(91.6, 190, 0), Vector(0, 0, 1), 3), False)
sketch8.addGeometry(Part.Circle(Vector(-91.6, 190, 0), Vector(0, 0, 1), 3), False)
sketch8.addGeometry(Part.Circle(Vector(-10, 190, 0), Vector(0, 0, 1), 3), False)
sketch8.addGeometry(Part.Circle(Vector(0, 210, 0), Vector(0, 0, 1), 3), False)
sketch8.addGeometry(Part.Circle(Vector(-210, 135, 0), Vector(0, 0, 1), 3), False)
sketch8.addGeometry(Part.Circle(Vector(-210, 165, 0), Vector(0, 0, 1), 3), False)
sketch8.addGeometry(Part.Circle(Vector(-210, 190, 0), Vector(0, 0, 1), 3), False)
sketch8.addGeometry(Part.Circle(Vector(-210, 210, 0), Vector(0, 0, 1), 3), False)
sketch8.addConstraint(Sketcher.Constraint("Equal", 0, 1))
sketch8.addConstraint(Sketcher.Constraint("Equal", 1, 2))
sketch8.addConstraint(Sketcher.Constraint("Equal", 2, 3))
sketch8.addConstraint(Sketcher.Constraint("Equal", 3, 4))
sketch8.addConstraint(Sketcher.Constraint("Equal", 4, 5))
sketch8.addConstraint(Sketcher.Constraint("Equal", 5, 6))
sketch8.addConstraint(Sketcher.Constraint("Equal", 6, 7))
sketch8.addConstraint(Sketcher.Constraint("Equal", 7, 8))
sketch8.addConstraint(Sketcher.Constraint("Equal", 8, 9))
sketch8.addConstraint(Sketcher.Constraint("Equal", 9, 10))
sketch8.addConstraint(Sketcher.Constraint("Equal", 10, 11))
sketch8.addConstraint(Sketcher.Constraint("Equal", 11, 12))
sketch8.addConstraint(Sketcher.Constraint("Equal", 12, 13))
sketch8.addConstraint(Sketcher.Constraint("Equal", 13, 14))
sketch8.addConstraint(Sketcher.Constraint("Equal", 14, 15))
sketch8.addConstraint(Sketcher.Constraint("Equal", 15, 16))
sketch8.addConstraint(Sketcher.Constraint("Equal", 16, 17))
sketch8.addConstraint(Sketcher.Constraint("Equal", 17, 18))
sketch8.addConstraint(Sketcher.Constraint("Equal", 18, 19))
sketch8.addConstraint(Sketcher.Constraint("Equal", 19, 20))
sketch8.addConstraint(Sketcher.Constraint("Equal", 20, 21))
sketch8.addConstraint(Sketcher.Constraint("Equal", 21, 22))
sketch8.addConstraint(Sketcher.Constraint("Equal", 22, 23))
sketch8.addConstraint(Sketcher.Constraint("Equal", 23, 24))
sketch8.addConstraint(Sketcher.Constraint("Equal", 24, 25))
sketch8.addConstraint(Sketcher.Constraint("Equal", 25, 26))
sketch8.addConstraint(Sketcher.Constraint("Equal", 26, 27))
sketch8.addConstraint(Sketcher.Constraint("Equal", 27, 28))
sketch8.addConstraint(Sketcher.Constraint("Equal", 28, 29))
sketch8.addConstraint(Sketcher.Constraint("Equal", 29, 30))
sketch8.addConstraint(Sketcher.Constraint("Equal", 30, 31))
sketch8.addConstraint(Sketcher.Constraint("Symmetric", 4, 3, 10, 3, -1, 1))
sketch8.addConstraint(Sketcher.Constraint("Symmetric", 5, 3, 11, 3, -1, 1))
sketch8.addConstraint(Sketcher.Constraint("Symmetric", 6, 3, 12, 3, -1, 1))
sketch8.addConstraint(Sketcher.Constraint("Symmetric", 0, 3, 19, 3, -1, 1))
sketch8.addConstraint(Sketcher.Constraint("Symmetric", 1, 3, 20, 3, -1, 1))
sketch8.addConstraint(Sketcher.Constraint("Symmetric", 2, 3, 21, 3, -1, 1))
sketch8.addConstraint(Sketcher.Constraint("Symmetric", 3, 3, 22, 3, -1, 1))
sketch8.addConstraint(Sketcher.Constraint("Symmetric", 8, 3, 23, 3, -1, 1))
sketch8.addConstraint(Sketcher.Constraint("Symmetric", 9, 3, 24, 3, -1, 1))
sketch8.addConstraint(Sketcher.Constraint("Symmetric", 13, 3, 25, 3, -1, 1))
sketch8.addConstraint(Sketcher.Constraint("Symmetric", 14, 3, 26, 3, -1, 1))
sketch8.addConstraint(Sketcher.Constraint("Symmetric", 7, 3, 27, 3, -1, 1))
sketch8.addConstraint(Sketcher.Constraint("Symmetric", 15, 3, 28, 3, -1, 1))
sketch8.addConstraint(Sketcher.Constraint("Symmetric", 16, 3, 29, 3, -1, 1))
sketch8.addConstraint(Sketcher.Constraint("Symmetric", 17, 3, 30, 3, -1, 1))
sketch8.addConstraint(Sketcher.Constraint("Symmetric", 18, 3, 31, 3, -1, 1))
sketch8.addConstraint(Sketcher.Constraint("Symmetric", 9, 3, 13, 3, -2))
sketch8.addConstraint(Sketcher.Constraint("Symmetric", 8, 3, 14, 3, -2))
sketch8.addConstraint(Sketcher.Constraint("Symmetric", 3, 3, 15, 3, -2))
sketch8.addConstraint(Sketcher.Constraint("Symmetric", 2, 3, 16, 3, -2))
sketch8.addConstraint(Sketcher.Constraint("Symmetric", 1, 3, 17, 3, -2))
sketch8.addConstraint(Sketcher.Constraint("Symmetric", 0, 3, 18, 3, -2))
sketch8.addConstraint(Sketcher.Constraint("PointOnObject", 4, 3, -1))
sketch8.addConstraint(Sketcher.Constraint("PointOnObject", 5, 3, -1))
sketch8.addConstraint(Sketcher.Constraint("PointOnObject", 6, 3, -1))
sketch8.addConstraint(Sketcher.Constraint("PointOnObject", 7, 3, -2))
sketch8.addConstraint(Sketcher.Constraint("Horizontal", 0, 3, 7, 3))
sketch8.addConstraint(Sketcher.Constraint("Horizontal", 1, 3, 8, 3))
sketch8.addConstraint(Sketcher.Constraint("Horizontal", 8, 3, 9, 3))
sketch8.addConstraint(Sketcher.Constraint("Vertical", 0, 3, 1, 3))
sketch8.addConstraint(Sketcher.Constraint("Vertical", 1, 3, 2, 3))
sketch8.addConstraint(Sketcher.Constraint("Vertical", 2, 3, 3, 3))
sketch8.addConstraint(Sketcher.Constraint("Vertical", 3, 3, 4, 3))
sketch8.addConstraint(Sketcher.Constraint("Vertical", 6, 3, 8, 3))
sketch8.addConstraint(Sketcher.Constraint("Vertical", 5, 3, 9, 3))
sketch8.addConstraint(Sketcher.Constraint("Diameter", 0, Q("6 mm")))
sketch8.addConstraint(Sketcher.Constraint("DistanceX", 0, 3, -1, 1, Q("210 mm")))
sketch8.addConstraint(Sketcher.Constraint("DistanceY", 0, 3, -1, 1, Q("210 mm")))
sketch8.addConstraint(Sketcher.Constraint("DistanceY", 1, 3, -1, 1, Q("190 mm")))
sketch8.addConstraint(Sketcher.Constraint("DistanceY", 2, 3, -1, 1, Q("165 mm")))
sketch8.addConstraint(Sketcher.Constraint("DistanceY", 3, 3, -1, 1, Q("135 mm")))
sketch8.addConstraint(Sketcher.Constraint("DistanceX", 6, 3, -1, 1, Q("10 mm")))
sketch8.addConstraint(Sketcher.Constraint("DistanceX", 5, 3, -1, 1, Q("91.6 mm")))
pocket6 = body.newObject("PartDesign::Pocket", "Pocket005")
pocket6.Profile = sketch8
pocket6.Type = "ThroughAll"
pocket6.Reversed = True

doc.recompute()
